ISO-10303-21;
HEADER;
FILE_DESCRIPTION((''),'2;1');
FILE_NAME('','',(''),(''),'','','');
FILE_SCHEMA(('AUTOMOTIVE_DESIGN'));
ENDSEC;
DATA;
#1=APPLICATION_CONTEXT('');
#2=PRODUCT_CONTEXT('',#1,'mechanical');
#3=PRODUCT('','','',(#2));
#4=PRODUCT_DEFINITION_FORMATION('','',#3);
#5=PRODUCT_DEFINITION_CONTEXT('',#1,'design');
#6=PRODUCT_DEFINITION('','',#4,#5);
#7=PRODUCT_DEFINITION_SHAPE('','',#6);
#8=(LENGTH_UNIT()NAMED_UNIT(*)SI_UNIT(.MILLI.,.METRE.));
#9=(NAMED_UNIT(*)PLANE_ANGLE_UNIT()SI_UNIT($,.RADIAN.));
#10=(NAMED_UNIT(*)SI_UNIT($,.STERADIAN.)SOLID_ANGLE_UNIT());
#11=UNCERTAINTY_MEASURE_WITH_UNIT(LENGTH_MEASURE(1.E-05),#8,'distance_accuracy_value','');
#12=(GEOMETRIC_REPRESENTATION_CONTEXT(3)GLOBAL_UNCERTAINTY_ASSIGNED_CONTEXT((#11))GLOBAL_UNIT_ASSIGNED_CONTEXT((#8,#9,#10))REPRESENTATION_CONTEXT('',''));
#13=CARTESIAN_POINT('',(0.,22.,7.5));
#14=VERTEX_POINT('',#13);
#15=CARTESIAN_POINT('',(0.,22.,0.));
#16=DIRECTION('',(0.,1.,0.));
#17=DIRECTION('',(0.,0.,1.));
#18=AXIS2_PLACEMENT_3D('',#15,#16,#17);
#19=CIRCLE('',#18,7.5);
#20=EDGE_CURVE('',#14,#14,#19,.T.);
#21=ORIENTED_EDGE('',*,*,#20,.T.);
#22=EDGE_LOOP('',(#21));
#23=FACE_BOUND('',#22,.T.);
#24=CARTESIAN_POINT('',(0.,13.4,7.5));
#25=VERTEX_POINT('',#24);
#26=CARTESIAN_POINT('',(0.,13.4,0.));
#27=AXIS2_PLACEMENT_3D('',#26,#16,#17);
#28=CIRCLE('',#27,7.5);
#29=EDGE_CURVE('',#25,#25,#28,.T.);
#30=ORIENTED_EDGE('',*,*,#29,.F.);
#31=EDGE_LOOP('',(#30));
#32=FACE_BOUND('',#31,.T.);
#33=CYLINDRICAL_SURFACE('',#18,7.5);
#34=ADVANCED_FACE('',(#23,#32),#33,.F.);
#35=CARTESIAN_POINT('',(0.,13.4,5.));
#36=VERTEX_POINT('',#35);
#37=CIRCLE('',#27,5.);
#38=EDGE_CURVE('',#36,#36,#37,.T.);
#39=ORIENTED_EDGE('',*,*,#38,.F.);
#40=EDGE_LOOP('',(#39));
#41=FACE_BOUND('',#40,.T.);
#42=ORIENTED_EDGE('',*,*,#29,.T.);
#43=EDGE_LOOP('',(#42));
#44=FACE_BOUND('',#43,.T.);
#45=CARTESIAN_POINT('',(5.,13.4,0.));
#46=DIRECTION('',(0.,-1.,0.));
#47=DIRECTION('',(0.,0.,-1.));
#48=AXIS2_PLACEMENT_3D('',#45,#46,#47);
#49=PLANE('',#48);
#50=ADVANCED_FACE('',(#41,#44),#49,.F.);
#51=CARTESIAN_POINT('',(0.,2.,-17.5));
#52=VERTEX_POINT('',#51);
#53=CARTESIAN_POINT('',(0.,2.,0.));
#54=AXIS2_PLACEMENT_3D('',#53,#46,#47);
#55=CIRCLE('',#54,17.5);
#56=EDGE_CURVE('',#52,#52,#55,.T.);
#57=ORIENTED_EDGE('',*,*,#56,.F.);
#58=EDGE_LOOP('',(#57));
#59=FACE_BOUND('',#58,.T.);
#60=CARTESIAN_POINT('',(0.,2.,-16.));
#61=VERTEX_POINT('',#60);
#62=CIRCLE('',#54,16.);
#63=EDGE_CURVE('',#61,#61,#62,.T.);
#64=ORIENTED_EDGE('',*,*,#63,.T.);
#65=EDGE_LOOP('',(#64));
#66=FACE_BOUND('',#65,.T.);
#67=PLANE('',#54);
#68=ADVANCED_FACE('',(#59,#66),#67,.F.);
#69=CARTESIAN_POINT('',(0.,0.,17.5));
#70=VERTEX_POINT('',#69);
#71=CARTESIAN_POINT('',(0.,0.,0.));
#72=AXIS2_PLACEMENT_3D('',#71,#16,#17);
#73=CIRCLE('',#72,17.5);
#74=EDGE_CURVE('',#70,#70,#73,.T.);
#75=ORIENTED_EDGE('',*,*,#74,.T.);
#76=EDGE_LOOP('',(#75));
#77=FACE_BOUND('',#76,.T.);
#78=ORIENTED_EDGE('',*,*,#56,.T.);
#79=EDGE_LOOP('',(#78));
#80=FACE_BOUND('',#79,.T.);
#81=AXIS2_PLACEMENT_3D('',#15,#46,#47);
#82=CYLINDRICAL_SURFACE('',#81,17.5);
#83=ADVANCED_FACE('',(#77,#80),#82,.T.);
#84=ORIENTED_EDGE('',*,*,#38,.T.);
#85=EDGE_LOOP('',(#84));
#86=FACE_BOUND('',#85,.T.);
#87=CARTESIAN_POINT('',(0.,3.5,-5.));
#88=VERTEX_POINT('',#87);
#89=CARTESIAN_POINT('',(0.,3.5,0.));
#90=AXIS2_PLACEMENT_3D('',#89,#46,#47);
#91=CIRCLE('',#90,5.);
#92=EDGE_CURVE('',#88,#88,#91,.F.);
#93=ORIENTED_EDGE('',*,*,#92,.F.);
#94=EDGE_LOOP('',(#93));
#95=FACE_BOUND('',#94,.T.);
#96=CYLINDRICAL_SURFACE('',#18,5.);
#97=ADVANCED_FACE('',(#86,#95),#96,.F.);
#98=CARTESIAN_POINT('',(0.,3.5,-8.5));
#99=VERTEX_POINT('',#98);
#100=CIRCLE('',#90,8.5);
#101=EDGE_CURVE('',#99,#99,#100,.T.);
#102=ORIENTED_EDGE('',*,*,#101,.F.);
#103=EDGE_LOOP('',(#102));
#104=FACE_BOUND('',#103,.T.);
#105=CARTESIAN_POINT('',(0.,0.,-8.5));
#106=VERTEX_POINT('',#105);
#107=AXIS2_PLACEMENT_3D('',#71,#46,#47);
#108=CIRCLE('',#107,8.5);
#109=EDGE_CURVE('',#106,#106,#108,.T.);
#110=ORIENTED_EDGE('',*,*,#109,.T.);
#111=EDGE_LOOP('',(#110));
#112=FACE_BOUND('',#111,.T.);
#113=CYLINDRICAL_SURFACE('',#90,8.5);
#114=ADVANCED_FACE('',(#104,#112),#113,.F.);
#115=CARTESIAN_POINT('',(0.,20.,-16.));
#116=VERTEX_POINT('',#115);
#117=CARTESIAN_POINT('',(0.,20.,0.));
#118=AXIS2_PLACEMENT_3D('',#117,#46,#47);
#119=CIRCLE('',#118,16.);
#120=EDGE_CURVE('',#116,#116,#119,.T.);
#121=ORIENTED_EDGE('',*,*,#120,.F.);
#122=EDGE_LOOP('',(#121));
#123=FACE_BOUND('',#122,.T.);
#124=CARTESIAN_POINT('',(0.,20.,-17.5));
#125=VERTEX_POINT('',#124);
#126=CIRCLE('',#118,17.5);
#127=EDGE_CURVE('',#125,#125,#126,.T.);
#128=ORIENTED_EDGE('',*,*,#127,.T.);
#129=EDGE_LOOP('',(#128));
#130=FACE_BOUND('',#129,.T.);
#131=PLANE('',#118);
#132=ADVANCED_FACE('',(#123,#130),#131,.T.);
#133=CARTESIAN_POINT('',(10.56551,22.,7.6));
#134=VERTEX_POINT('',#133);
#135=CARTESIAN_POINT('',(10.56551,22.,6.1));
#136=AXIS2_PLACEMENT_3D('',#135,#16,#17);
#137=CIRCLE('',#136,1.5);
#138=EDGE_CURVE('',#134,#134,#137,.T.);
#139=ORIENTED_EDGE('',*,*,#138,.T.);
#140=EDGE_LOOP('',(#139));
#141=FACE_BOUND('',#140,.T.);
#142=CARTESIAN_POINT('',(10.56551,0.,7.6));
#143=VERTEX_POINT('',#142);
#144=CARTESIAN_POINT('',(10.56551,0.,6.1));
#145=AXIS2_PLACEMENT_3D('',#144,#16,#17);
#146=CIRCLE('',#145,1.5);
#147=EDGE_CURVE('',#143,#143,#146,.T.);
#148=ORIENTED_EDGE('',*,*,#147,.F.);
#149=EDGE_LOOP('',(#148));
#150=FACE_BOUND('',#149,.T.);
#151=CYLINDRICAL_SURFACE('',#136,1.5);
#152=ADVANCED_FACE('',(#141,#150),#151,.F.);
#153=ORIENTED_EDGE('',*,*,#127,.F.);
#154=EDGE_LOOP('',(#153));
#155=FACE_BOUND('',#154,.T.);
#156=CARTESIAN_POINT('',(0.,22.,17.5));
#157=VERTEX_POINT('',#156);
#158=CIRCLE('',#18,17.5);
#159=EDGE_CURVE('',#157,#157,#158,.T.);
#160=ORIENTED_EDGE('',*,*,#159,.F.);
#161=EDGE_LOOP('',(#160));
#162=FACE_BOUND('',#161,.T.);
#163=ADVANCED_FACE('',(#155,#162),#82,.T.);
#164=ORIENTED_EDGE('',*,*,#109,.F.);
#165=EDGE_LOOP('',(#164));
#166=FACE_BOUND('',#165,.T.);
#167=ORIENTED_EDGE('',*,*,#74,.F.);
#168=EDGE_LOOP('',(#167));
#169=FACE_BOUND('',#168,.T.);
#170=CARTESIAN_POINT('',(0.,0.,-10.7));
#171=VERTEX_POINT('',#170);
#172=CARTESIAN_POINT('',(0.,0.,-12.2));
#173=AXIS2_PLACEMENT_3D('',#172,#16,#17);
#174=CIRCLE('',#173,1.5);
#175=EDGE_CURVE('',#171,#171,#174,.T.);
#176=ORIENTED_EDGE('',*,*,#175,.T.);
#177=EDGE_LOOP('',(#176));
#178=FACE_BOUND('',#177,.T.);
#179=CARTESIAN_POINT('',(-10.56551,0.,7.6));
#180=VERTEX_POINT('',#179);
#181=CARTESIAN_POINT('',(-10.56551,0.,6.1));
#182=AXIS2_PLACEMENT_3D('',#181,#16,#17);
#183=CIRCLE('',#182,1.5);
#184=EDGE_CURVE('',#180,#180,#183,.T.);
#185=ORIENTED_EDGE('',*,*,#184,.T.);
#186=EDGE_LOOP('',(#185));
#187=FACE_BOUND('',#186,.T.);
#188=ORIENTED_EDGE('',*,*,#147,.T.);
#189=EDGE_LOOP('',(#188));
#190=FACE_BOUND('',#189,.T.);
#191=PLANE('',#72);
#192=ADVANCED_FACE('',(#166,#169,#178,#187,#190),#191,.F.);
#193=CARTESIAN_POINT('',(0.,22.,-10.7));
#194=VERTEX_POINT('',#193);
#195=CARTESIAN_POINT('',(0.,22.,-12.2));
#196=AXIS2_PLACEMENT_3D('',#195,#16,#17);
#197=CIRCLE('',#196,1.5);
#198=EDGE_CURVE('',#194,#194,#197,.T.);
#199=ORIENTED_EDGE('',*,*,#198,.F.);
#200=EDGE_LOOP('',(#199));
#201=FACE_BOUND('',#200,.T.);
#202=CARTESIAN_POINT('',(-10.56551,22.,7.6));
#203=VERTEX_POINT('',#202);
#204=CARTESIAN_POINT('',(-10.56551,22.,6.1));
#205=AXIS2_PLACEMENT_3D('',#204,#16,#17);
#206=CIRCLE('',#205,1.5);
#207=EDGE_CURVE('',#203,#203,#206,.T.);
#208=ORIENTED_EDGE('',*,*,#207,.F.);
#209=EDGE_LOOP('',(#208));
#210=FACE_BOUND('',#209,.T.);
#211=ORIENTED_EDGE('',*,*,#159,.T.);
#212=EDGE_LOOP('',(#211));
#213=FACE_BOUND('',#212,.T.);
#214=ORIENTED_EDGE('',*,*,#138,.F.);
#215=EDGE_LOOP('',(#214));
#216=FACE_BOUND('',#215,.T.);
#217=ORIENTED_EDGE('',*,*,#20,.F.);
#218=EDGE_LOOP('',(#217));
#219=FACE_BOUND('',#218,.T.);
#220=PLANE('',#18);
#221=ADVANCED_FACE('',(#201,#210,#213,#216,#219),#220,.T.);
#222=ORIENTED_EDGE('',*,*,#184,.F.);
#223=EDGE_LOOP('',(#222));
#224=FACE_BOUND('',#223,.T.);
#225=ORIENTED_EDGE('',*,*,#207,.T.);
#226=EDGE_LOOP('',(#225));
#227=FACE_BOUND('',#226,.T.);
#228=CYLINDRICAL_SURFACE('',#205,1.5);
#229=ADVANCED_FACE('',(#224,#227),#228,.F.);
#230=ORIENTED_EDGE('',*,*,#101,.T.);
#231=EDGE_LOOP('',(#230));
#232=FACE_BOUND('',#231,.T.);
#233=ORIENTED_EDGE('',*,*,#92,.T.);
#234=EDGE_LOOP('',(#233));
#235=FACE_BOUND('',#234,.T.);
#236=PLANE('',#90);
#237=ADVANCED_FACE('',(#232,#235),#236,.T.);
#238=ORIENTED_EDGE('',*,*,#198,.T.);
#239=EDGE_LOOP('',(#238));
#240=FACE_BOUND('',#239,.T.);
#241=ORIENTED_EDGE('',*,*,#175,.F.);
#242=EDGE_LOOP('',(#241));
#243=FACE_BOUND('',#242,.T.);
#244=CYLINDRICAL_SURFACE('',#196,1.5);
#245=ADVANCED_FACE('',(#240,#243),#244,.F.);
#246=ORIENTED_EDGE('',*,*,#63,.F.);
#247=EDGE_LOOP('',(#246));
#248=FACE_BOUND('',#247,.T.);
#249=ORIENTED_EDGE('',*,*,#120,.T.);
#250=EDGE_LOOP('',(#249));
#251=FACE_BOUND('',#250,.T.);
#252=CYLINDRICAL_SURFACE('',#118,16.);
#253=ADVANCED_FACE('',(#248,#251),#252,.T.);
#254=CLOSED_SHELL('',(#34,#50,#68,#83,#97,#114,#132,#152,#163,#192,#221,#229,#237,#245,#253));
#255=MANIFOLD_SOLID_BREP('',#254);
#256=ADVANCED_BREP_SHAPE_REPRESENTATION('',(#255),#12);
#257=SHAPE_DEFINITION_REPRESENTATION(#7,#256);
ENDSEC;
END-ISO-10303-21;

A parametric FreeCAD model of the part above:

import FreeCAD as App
import Part
import Sketcher

V = App.Vector
Q = App.Units.Quantity

doc = App.newDocument("Part")
body = doc.addObject("PartDesign::Body", "Body")

sketch1 = body.newObject("Sketcher::SketchObject", "Sketch")
sketch1.AttachmentSupport = (doc.getObject("XZ_Plane"), [""])
sketch1.MapMode = "FlatFace"
sketch1.addGeometry(Part.Circle(V(0, 0, 0), V(0, 0, 1), 18), False)
sketch1.addConstraint([
    Sketcher.Constraint("Coincident", 0, 3, -1, 1),
    Sketcher.Constraint("Diameter", 0, Q("35 mm")),
])
pad1 = body.newObject("PartDesign::Pad", "Pad")
pad1.Profile = sketch1
pad1.Length = 22
pad1.Reversed = True

sketch2 = body.newObject("Sketcher::SketchObject", "Sketch001")
sketch2.AttachmentSupport = (doc.getObject("XZ_Plane"), [""])
sketch2.MapMode = "FlatFace"
sketch2.AttachmentOffset = App.Placement(V(0, 0, -22), App.Rotation())
sketch2.addGeometry(Part.Circle(V(0, 0, 0), V(0, 0, 1), 5), False)
sketch2.addConstraint([
    Sketcher.Constraint("Coincident", 0, 3, -1, 1),
    Sketcher.Constraint("Diameter", 0, Q("10 mm")),
])
doc.recompute()
hole = body.newObject("PartDesign::Hole", "Hole")
hole.Profile = sketch2
hole.ThreadType = "None"
hole.Diameter = 10
hole.DepthType = "ThroughAll"
hole.HoleCutType = "Counterbore"
hole.HoleCutDiameter = 15
hole.HoleCutDepth = 8.6
hole.Reversed = True

sketch3 = body.newObject("Sketcher::SketchObject", "Sketch002")
sketch3.AttachmentSupport = (doc.getObject("XZ_Plane"), [""])
sketch3.MapMode = "FlatFace"
sketch3.AttachmentOffset = App.Placement(V(0, 0, -22), App.Rotation())
sketch3.addGeometry([
    Part.Circle(V(-10.6, 6.1, 0), V(0, 0, 1), 1.5),
    Part.Circle(V(0, -12.2, 0), V(0, 0, 1), 1.5),
    Part.Circle(V(10.6, 6.1, 0), V(0, 0, 1), 1.5),
], False)
sketch3.addConstraint([
    Sketcher.Constraint("Equal", 0, 1),
    Sketcher.Constraint("Equal", 1, 2),
    Sketcher.Constraint("Symmetric", 0, 3, 2, 3, -2),
    Sketcher.Constraint("PointOnObject", 1, 3, -2),
    Sketcher.Constraint("Diameter", 0, Q("3 mm")),
    Sketcher.Constraint("DistanceY", -1, 1, 0, 3, Q("6.1 mm")),
    Sketcher.Constraint("DistanceY", 1, 3, -1, 1, Q("12.2 mm")),
    Sketcher.Constraint("DistanceX", 0, 3, -1, 1, Q("10.56551 mm")),
])
doc.recompute()
hole2 = body.newObject("PartDesign::Hole", "Hole001")
hole2.Profile = sketch3
hole2.ThreadType = "None"
hole2.Diameter = 3
hole2.DepthType = "ThroughAll"
hole2.Reversed = True

sketch4 = body.newObject("Sketcher::SketchObject", "Sketch003")
sketch4.AttachmentSupport = (doc.getObject("XZ_Plane"), [""])
sketch4.MapMode = "FlatFace"
sketch4.addGeometry(Part.Circle(V(0, 0, 0), V(0, 0, 1), 8), False)
sketch4.addConstraint([
    Sketcher.Constraint("Coincident", 0, 3, -1, 1),
    Sketcher.Constraint("Diameter", 0, Q("17 mm")),
])
pocket1 = body.newObject("PartDesign::Pocket", "Pocket")
pocket1.Profile = sketch4
pocket1.Length = 3.5

sketch5 = body.newObject("Sketcher::SketchObject", "Sketch004")
sketch5.AttachmentSupport = (doc.getObject("XZ_Plane"), [""])
sketch5.MapMode = "FlatFace"
sketch5.AttachmentOffset = App.Placement(V(0, 0, -2), App.Rotation())
sketch5.addGeometry([
    Part.Circle(V(0, 0, 0), V(0, 0, 1), 18),
    Part.Circle(V(0, 0, 0), V(0, 0, 1), 16),
], False)
sketch5.addConstraint([
    Sketcher.Constraint("Coincident", 0, 3, -1, 1),
    Sketcher.Constraint("Coincident", 1, 3, -1, 1),
    Sketcher.Constraint("Diameter", 0, Q("35 mm")),
    Sketcher.Constraint("Diameter", 1, Q("32 mm")),
])
pocket2 = body.newObject("PartDesign::Pocket", "Pocket001")
pocket2.Profile = sketch5
pocket2.Length = 18

doc.recompute()
